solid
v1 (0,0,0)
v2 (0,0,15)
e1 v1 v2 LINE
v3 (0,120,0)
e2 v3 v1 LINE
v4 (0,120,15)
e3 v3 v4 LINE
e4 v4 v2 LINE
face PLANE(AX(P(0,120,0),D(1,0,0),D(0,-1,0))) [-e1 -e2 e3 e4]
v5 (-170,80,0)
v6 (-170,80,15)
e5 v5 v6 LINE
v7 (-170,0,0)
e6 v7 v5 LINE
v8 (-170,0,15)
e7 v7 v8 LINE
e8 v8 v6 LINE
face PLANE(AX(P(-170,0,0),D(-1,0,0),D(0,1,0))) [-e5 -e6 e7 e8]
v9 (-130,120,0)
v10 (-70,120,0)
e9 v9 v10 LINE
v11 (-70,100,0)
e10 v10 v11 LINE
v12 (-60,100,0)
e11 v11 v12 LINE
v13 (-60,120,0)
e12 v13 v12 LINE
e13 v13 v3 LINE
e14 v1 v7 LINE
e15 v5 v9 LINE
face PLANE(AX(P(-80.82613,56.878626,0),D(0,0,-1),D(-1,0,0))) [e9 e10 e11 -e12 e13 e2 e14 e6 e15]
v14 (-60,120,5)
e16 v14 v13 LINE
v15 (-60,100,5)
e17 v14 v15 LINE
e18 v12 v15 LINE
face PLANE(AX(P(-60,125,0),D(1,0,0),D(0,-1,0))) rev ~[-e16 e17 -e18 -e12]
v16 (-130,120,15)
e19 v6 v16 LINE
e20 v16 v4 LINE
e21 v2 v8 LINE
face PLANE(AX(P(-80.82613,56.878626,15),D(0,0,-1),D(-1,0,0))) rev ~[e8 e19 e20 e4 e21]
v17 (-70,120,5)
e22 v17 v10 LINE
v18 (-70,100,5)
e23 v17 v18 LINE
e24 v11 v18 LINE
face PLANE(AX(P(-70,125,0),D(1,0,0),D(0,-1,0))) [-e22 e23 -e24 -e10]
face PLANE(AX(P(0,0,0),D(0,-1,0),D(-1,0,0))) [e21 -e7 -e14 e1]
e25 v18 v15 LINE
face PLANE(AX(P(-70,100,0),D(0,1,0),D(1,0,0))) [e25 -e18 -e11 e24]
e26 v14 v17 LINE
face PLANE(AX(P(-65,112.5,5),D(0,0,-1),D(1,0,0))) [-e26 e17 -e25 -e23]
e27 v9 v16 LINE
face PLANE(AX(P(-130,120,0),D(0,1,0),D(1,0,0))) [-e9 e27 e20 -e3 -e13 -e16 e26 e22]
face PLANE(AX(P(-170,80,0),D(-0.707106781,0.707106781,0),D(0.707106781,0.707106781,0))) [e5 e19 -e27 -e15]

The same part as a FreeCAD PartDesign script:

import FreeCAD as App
import Part
import Sketcher
Q = App.Units.Quantity

doc = App.newDocument("Part")
params = doc.addObject("Spreadsheet::Sheet", "Params")
for row, (alias, value) in enumerate([
    ("sketch1_width", "170 mm"),
    ("sketch1_width2", "130 mm"),
    ("sketch1_height", "80 mm"),
    ("sketch1_height2", "120 mm"),
    ("pad1_length", "15 mm"),
    ("sketch2_width", "10 mm"),
    ("sketch2_height", "25 mm"),
    ("pocket1_length", "5 mm"),
], start=1):
    params.set(f"A{row}", alias)
    params.set(f"B{row}", "=" + value)
    params.setAlias(f"B{row}", alias)

body = doc.addObject("PartDesign::Body", "Body")

sketch1 = body.newObject("Sketcher::SketchObject", "Sketch")
sketch1.AttachmentSupport = (doc.getObject("XY_Plane"), [""])
sketch1.MapMode = "FlatFace"
sketch1.addGeometry(Part.LineSegment(App.Vector(-170, 80, 0), App.Vector(-170, 0, 0)), False)
sketch1.addGeometry(Part.LineSegment(App.Vector(-170, 0, 0), App.Vector(0, 0, 0)), False)
sketch1.addGeometry(Part.LineSegment(App.Vector(0, 0, 0), App.Vector(0, 120, 0)), False)
sketch1.addGeometry(Part.LineSegment(App.Vector(0, 120, 0), App.Vector(-130, 120, 0)), False)
sketch1.addGeometry(Part.LineSegment(App.Vector(-130, 120, 0), App.Vector(-170, 80, 0)), False)
sketch1.addConstraint(Sketcher.Constraint("Coincident", 0, 2, 1, 1))
sketch1.addConstraint(Sketcher.Constraint("Coincident", 1, 2, 2, 1))
sketch1.addConstraint(Sketcher.Constraint("Coincident", 2, 2, 3, 1))
sketch1.addConstraint(Sketcher.Constraint("Coincident", 3, 2, 4, 1))
sketch1.addConstraint(Sketcher.Constraint("Coincident", 4, 2, 0, 1))
sketch1.addConstraint(Sketcher.Constraint("Vertical", 0))
sketch1.addConstraint(Sketcher.Constraint("Horizontal", 1))
sketch1.addConstraint(Sketcher.Constraint("Vertical", 2))
sketch1.addConstraint(Sketcher.Constraint("Horizontal", 3))
sketch1.addConstraint(Sketcher.Constraint("Coincident", 1, 2, -1, 1))
sketch1.addConstraint(Sketcher.Constraint("DistanceX", 1, 1, 1, 2, Q("170 mm")))
sketch1.addConstraint(Sketcher.Constraint("DistanceX", 3, 2, 3, 1, Q("130 mm")))
sketch1.addConstraint(Sketcher.Constraint("DistanceY", 0, 2, 0, 1, Q("80 mm")))
sketch1.addConstraint(Sketcher.Constraint("DistanceY", 2, 1, 2, 2, Q("120 mm")))
sketch1.setExpression("Constraints[10]", "Params.sketch1_width")
sketch1.setExpression("Constraints[11]", "Params.sketch1_width2")
sketch1.setExpression("Constraints[12]", "Params.sketch1_height")
sketch1.setExpression("Constraints[13]", "Params.sketch1_height2")
pad1 = body.newObject("PartDesign::Pad", "Pad")
pad1.Profile = sketch1
pad1.setExpression("Length", "Params.pad1_length")

sketch2 = body.newObject("Sketcher::SketchObject", "Sketch001")
sketch2.AttachmentSupport = (doc.getObject("XY_Plane"), [""])
sketch2.MapMode = "FlatFace"
sketch2.addGeometry(Part.LineSegment(App.Vector(-70, 100, 0), App.Vector(-70, 125, 0)), False)
sketch2.addGeometry(Part.LineSegment(App.Vector(-70, 125, 0), App.Vector(-60, 125, 0)), False)
sketch2.addGeometry(Part.LineSegment(App.Vector(-60, 125, 0), App.Vector(-60, 100, 0)), False)
sketch2.addGeometry(Part.LineSegment(App.Vector(-60, 100, 0), App.Vector(-70, 100, 0)), False)
sketch2.addConstraint(Sketcher.Constraint("Coincident", 0, 2, 1, 1))
sketch2.addConstraint(Sketcher.Constraint("Coincident", 1, 2, 2, 1))
sketch2.addConstraint(Sketcher.Constraint("Coincident", 2, 2, 3, 1))
sketch2.addConstraint(Sketcher.Constraint("Coincident", 3, 2, 0, 1))
sketch2.addConstraint(Sketcher.Constraint("Vertical", 0))
sketch2.addConstraint(Sketcher.Constraint("Horizontal", 1))
sketch2.addConstraint(Sketcher.Constraint("Vertical", 2))
sketch2.addConstraint(Sketcher.Constraint("Horizontal", 3))
sketch2.addConstraint(Sketcher.Constraint("DistanceX", 1, 1, 1, 2, Q("10 mm")))
sketch2.addConstraint(Sketcher.Constraint("DistanceY", 0, 1, 0, 2, Q("25 mm")))
sketch2.addConstraint(Sketcher.Constraint("DistanceX", 0, 2, -1, 1, Q("70 mm")))
sketch2.addConstraint(Sketcher.Constraint("DistanceY", -1, 1, 0, 2, Q("125 mm")))
sketch2.setExpression("Constraints[8]", "Params.sketch2_width")
sketch2.setExpression("Constraints[9]", "Params.sketch2_height")
pocket1 = body.newObject("PartDesign::Pocket", "Pocket")
pocket1.Profile = sketch2
pocket1.setExpression("Length", "Params.pocket1_length")
pocket1.Reversed = True

doc.recompute()
